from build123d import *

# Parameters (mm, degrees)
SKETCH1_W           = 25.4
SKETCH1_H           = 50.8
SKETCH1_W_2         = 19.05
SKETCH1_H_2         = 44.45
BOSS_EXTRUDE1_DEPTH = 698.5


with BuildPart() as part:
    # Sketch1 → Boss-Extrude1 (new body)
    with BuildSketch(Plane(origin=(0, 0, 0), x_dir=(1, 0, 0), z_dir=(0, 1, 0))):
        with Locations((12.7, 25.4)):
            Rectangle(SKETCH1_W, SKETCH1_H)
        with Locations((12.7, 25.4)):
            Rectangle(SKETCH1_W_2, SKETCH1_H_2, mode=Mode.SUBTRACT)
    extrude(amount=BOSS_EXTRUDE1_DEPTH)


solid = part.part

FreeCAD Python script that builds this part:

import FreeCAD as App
import Part
import Sketcher
from FreeCAD import Vector
Q = App.Units.Quantity


def add_polygon(sketch, points):
    """Adds a closed chain of lines whose ends are joined by coincident constraints."""
    first, n = sketch.GeometryCount, len(points)
    for a, b in zip(points, points[1:] + points[:1]):
        sketch.addGeometry(Part.LineSegment(App.Vector(*a, 0), App.Vector(*b, 0)), False)
    for i in range(n):
        sketch.addConstraint(Sketcher.Constraint("Coincident", first + i, 2, first + (i + 1) % n, 1))

doc = App.newDocument("Part")
body = doc.addObject("PartDesign::Body", "Body")

sketch1 = body.newObject("Sketcher::SketchObject", "Sketch")
sketch1.AttachmentSupport = (doc.getObject("XZ_Plane"), [""])
sketch1.MapMode = "FlatFace"
add_polygon(sketch1, [(0, -50.8), (0, 0), (25.4, 0), (25.4, -50.8)])
add_polygon(sketch1, [(22.225, -3.175), (3.175, -3.175), (3.175, -47.625), (22.225, -47.625)])
sketch1.addConstraint([
    Sketcher.Constraint("Vertical", 0),
    Sketcher.Constraint("Horizontal", 1),
    Sketcher.Constraint("Vertical", 2),
    Sketcher.Constraint("Horizontal", 3),
    Sketcher.Constraint("Horizontal", 4),
    Sketcher.Constraint("Vertical", 5),
    Sketcher.Constraint("Horizontal", 6),
    Sketcher.Constraint("Vertical", 7),
    Sketcher.Constraint("Coincident", 0, 2, -1, 1),
    Sketcher.Constraint("DistanceX", 1, 1, 1, 2, Q("1 in")),
    Sketcher.Constraint("DistanceY", 0, 1, 0, 2, Q("2 in")),
    Sketcher.Constraint("DistanceX", 4, 2, 4, 1, Q("0.75 in")),
    Sketcher.Constraint("DistanceY", 5, 2, 5, 1, Q("1.75 in")),
    Sketcher.Constraint("DistanceX", -1, 1, 4, 2, Q("0.125 in")),
    Sketcher.Constraint("DistanceY", 4, 2, -1, 1, Q("0.125 in")),
])
pad1 = body.newObject("PartDesign::Pad", "Pad")
pad1.Profile = sketch1
pad1.Length = Q("27.5 in")
pad1.Reversed = True

doc.recompute()
